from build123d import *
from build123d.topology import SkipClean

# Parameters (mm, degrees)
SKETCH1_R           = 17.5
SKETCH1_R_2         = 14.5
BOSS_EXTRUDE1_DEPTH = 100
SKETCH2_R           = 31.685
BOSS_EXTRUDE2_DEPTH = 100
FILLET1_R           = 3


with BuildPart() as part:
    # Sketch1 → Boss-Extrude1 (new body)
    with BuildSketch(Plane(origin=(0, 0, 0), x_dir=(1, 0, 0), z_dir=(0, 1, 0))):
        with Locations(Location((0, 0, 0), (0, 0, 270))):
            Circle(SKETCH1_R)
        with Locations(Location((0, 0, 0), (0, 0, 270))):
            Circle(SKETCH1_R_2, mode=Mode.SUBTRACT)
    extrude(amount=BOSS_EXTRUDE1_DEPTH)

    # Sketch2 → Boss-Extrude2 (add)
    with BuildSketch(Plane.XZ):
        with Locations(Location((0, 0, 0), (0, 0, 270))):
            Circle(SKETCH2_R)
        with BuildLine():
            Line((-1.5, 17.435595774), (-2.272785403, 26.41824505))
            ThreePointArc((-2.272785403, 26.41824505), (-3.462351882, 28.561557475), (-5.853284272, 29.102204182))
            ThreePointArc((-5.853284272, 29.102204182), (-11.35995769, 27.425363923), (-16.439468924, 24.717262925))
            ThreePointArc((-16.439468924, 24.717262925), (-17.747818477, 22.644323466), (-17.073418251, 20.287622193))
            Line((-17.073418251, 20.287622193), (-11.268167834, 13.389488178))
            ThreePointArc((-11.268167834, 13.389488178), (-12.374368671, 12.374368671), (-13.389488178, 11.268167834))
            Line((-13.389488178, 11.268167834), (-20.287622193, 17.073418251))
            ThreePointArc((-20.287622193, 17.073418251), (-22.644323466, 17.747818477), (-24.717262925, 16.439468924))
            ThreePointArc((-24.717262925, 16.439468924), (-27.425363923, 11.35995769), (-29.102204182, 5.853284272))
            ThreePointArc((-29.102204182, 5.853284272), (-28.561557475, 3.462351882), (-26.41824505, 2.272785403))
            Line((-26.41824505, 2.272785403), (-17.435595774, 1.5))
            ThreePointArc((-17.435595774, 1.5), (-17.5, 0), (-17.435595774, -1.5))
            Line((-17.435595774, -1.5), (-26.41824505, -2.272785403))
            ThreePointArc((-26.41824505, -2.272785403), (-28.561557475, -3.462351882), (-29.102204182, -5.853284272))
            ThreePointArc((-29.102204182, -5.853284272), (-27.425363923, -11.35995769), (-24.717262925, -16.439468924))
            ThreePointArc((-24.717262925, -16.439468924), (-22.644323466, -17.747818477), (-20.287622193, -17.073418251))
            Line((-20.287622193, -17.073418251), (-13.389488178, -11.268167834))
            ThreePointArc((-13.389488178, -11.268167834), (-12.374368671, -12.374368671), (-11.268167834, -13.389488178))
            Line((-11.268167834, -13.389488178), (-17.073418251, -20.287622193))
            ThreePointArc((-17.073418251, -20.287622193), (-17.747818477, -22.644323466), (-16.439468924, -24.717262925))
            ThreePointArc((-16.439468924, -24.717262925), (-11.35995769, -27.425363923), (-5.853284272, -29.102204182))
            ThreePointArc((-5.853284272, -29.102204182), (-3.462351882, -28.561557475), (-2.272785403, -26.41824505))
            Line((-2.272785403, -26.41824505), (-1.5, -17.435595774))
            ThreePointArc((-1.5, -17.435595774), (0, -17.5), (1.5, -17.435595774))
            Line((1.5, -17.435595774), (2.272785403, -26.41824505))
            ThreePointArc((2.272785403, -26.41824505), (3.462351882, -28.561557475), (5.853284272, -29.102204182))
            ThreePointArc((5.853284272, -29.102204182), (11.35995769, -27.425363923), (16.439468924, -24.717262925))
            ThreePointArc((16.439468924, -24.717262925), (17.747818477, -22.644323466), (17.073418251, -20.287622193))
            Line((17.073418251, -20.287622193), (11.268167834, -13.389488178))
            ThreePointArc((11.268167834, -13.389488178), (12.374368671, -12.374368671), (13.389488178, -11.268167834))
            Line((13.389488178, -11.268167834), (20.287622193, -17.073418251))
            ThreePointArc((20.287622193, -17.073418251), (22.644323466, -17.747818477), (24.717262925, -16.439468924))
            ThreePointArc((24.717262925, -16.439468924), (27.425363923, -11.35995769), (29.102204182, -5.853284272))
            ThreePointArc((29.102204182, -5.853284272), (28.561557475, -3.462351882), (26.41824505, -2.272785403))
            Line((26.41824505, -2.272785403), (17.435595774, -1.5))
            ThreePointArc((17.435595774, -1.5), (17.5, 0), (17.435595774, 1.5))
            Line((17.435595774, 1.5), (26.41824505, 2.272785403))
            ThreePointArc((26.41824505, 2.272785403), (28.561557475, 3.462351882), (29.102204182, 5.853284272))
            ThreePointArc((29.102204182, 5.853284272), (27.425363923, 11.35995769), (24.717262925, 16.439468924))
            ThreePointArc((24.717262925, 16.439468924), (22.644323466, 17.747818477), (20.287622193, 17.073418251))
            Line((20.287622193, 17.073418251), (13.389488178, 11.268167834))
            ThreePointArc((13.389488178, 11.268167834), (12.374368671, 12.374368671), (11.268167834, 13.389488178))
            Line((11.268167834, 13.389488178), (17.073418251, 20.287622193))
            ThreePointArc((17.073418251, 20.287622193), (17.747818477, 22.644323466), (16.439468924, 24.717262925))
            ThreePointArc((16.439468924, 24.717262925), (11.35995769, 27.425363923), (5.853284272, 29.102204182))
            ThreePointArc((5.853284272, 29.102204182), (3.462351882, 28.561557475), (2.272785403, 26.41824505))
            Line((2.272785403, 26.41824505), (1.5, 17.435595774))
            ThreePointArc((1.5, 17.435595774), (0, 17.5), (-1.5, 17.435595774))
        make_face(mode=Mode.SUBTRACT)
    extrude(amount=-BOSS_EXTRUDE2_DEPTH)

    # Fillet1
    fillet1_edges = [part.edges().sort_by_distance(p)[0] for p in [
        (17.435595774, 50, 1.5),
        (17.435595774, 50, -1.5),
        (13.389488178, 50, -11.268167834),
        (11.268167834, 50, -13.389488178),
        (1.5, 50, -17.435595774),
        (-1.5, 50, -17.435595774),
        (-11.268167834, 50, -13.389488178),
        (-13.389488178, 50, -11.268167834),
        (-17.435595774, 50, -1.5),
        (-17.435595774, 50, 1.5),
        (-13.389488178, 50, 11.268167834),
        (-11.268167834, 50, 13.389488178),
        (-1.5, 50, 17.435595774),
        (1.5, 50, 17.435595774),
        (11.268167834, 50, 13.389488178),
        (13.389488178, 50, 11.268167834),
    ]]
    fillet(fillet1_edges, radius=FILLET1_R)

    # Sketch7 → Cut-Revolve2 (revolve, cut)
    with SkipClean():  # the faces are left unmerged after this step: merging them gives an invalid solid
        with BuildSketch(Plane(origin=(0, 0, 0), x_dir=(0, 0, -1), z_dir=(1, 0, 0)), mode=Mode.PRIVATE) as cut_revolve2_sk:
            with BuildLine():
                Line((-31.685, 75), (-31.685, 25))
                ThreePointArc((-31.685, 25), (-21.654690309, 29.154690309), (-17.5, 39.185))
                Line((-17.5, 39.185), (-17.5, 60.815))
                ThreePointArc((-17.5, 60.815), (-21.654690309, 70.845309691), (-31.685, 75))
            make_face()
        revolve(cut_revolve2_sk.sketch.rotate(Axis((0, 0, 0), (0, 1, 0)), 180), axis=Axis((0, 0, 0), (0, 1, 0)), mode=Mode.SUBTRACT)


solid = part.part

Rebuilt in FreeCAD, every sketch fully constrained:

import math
import FreeCAD as App
import Part
import Sketcher
from FreeCAD import Vector
Q = App.Units.Quantity


def edges_at(feature, points):
    """Names of the edges that pass closest to the given points."""
    edges = feature.Shape.Edges
    near = lambda p: min(range(len(edges)), key=lambda i: edges[i].distToShape(Part.Vertex(*p))[0])
    return sorted({f"Edge{near(p) + 1}" for p in points})

doc = App.newDocument("Part")
params = doc.addObject("Spreadsheet::Sheet", "Params")
for row, (alias, value) in enumerate([
    ("sketch1_diameter", "35 mm"),
    ("sketch1_diameter2", "29 mm"),
    ("pad1_length", "100 mm"),
    ("sketch2_radius", "3 mm"),
    ("sketch2_radius2", "17.5 mm"),
    ("sketch2_diameter", "63.37 mm"),
    ("pad2_length", "100 mm"),
    ("fillet_radius", "3 mm"),
    ("sketch3_width", "50 mm"),
    ("groove_angle", "360 deg"),
], start=1):
    params.set(f"A{row}", alias)
    params.set(f"B{row}", "=" + value)
    params.setAlias(f"B{row}", alias)

body = doc.addObject("PartDesign::Body", "Body")

sketch1 = body.newObject("Sketcher::SketchObject", "Sketch")
sketch1.AttachmentSupport = (doc.getObject("XZ_Plane"), [""])
sketch1.MapMode = "FlatFace"
sketch1.addGeometry([
    Part.Circle(Vector(0, 0, 0), Vector(0, 0, 1), 17.5),
    Part.Circle(Vector(0, 0, 0), Vector(0, 0, 1), 14.5),
], False)
sketch1.addConstraint([
    Sketcher.Constraint("Coincident", 0, 3, -1, 1),
    Sketcher.Constraint("Coincident", 1, 3, -1, 1),
    Sketcher.Constraint("Diameter", 0, Q("35 mm")),
    Sketcher.Constraint("Diameter", 1, Q("29 mm")),
])
sketch1.setExpression("Constraints[2]", "Params.sketch1_diameter")
sketch1.setExpression("Constraints[3]", "Params.sketch1_diameter2")
pad1 = body.newObject("PartDesign::Pad", "Pad")
pad1.Profile = sketch1
pad1.setExpression("Length", "Params.pad1_length")
pad1.Reversed = True

sketch2 = body.newObject("Sketcher::SketchObject", "Sketch001")
sketch2.AttachmentSupport = (doc.getObject("XZ_Plane"), [""])
sketch2.MapMode = "FlatFace"
sketch2.addGeometry([
    Part.Circle(Vector(0, 0, 0), Vector(0, 0, 1), 31.685),
    Part.LineSegment(Vector(-2.272785, 26.418245, 0), Vector(-1.5, 17.435596, 0)),
    Part.ArcOfCircle(Part.Circle(Vector(0, 0, 0), Vector(0, 0, 1), 17.5), math.radians(85.0829), math.radians(94.9171)),
    Part.LineSegment(Vector(1.5, 17.435596, 0), Vector(2.272785, 26.418245, 0)),
    Part.ArcOfCircle(Part.Circle(Vector(5.261745, 26.161102, 0), Vector(0, 0, 1), 3), math.radians(78.627907), math.radians(175.0829)),
    Part.ArcOfCircle(Part.Circle(Vector(0, 0, 0), Vector(0, 0, 1), 29.685), math.radians(56.372093), math.radians(78.627907)),
    Part.ArcOfCircle(Part.Circle(Vector(14.778077, 22.219308, 0), Vector(0, 0, 1), 3), math.radians(-40.0829), math.radians(56.372093)),
    Part.LineSegment(Vector(17.073418, 20.287622, 0), Vector(11.268168, 13.389488, 0)),
    Part.ArcOfCircle(Part.Circle(Vector(0, 0, 0), Vector(0, 0, 1), 17.5), math.radians(40.0829), math.radians(49.9171)),
    Part.LineSegment(Vector(13.389488, 11.268168, 0), Vector(20.287622, 17.073418, 0)),
    Part.ArcOfCircle(Part.Circle(Vector(22.219308, 14.778077, 0), Vector(0, 0, 1), 3), math.radians(33.627907), math.radians(130.0829)),
    Part.ArcOfCircle(Part.Circle(Vector(0, 0, 0), Vector(0, 0, 1), 29.685), math.radians(11.372093), math.radians(33.627907)),
    Part.ArcOfCircle(Part.Circle(Vector(26.161102, 5.261745, 0), Vector(0, 0, 1), 3), math.radians(-85.0829), math.radians(11.372093)),
    Part.LineSegment(Vector(26.418245, 2.272785, 0), Vector(17.435596, 1.5, 0)),
    Part.ArcOfCircle(Part.Circle(Vector(0, 0, 0), Vector(0, 0, 1), 17.5), math.radians(-4.9171), math.radians(4.9171)),
    Part.LineSegment(Vector(17.435596, -1.5, 0), Vector(26.418245, -2.272785, 0)),
    Part.ArcOfCircle(Part.Circle(Vector(26.161102, -5.261745, 0), Vector(0, 0, 1), 3), math.radians(-11.372093), math.radians(85.0829)),
    Part.ArcOfCircle(Part.Circle(Vector(0, 0, 0), Vector(0, 0, 1), 29.685), math.radians(-33.627907), math.radians(-11.372093)),
    Part.ArcOfCircle(Part.Circle(Vector(22.219308, -14.778077, 0), Vector(0, 0, 1), 3), math.radians(-130.0829), math.radians(-33.627907)),
    Part.LineSegment(Vector(20.287622, -17.073418, 0), Vector(13.389488, -11.268168, 0)),
    Part.ArcOfCircle(Part.Circle(Vector(0, 0, 0), Vector(0, 0, 1), 17.5), math.radians(-49.9171), math.radians(-40.0829)),
    Part.LineSegment(Vector(11.268168, -13.389488, 0), Vector(17.073418, -20.287622, 0)),
    Part.ArcOfCircle(Part.Circle(Vector(14.778077, -22.219308, 0), Vector(0, 0, 1), 3), math.radians(-56.372093), math.radians(40.0829)),
    Part.ArcOfCircle(Part.Circle(Vector(0, 0, 0), Vector(0, 0, 1), 29.685), math.radians(-78.627907), math.radians(-56.372093)),
    Part.ArcOfCircle(Part.Circle(Vector(5.261745, -26.161102, 0), Vector(0, 0, 1), 3), math.radians(-175.0829), math.radians(-78.627907)),
    Part.LineSegment(Vector(2.272785, -26.418245, 0), Vector(1.5, -17.435596, 0)),
    Part.ArcOfCircle(Part.Circle(Vector(0, 0, 0), Vector(0, 0, 1), 17.5), math.radians(-94.9171), math.radians(-85.0829)),
    Part.LineSegment(Vector(-1.5, -17.435596, 0), Vector(-2.272785, -26.418245, 0)),
    Part.ArcOfCircle(Part.Circle(Vector(-5.261745, -26.161102, 0), Vector(0, 0, 1), 3), math.radians(-101.372093), math.radians(-4.9171)),
    Part.ArcOfCircle(Part.Circle(Vector(0, 0, 0), Vector(0, 0, 1), 29.685), math.radians(-123.627907), math.radians(-101.372093)),
    Part.ArcOfCircle(Part.Circle(Vector(-14.778077, -22.219308, 0), Vector(0, 0, 1), 3), math.radians(139.9171), math.radians(236.372093)),
    Part.LineSegment(Vector(-17.073418, -20.287622, 0), Vector(-11.268168, -13.389488, 0)),
    Part.ArcOfCircle(Part.Circle(Vector(0, 0, 0), Vector(0, 0, 1), 17.5), math.radians(-139.9171), math.radians(-130.0829)),
    Part.LineSegment(Vector(-13.389488, -11.268168, 0), Vector(-20.287622, -17.073418, 0)),
    Part.ArcOfCircle(Part.Circle(Vector(-22.219308, -14.778077, 0), Vector(0, 0, 1), 3), math.radians(-146.372093), math.radians(-49.9171)),
    Part.ArcOfCircle(Part.Circle(Vector(0, 0, 0), Vector(0, 0, 1), 29.685), math.radians(-168.627907), math.radians(-146.372093)),
    Part.ArcOfCircle(Part.Circle(Vector(-26.161102, -5.261745, 0), Vector(0, 0, 1), 3), math.radians(94.9171), math.radians(191.372093)),
    Part.LineSegment(Vector(-26.418245, -2.272785, 0), Vector(-17.435596, -1.5, 0)),
    Part.ArcOfCircle(Part.Circle(Vector(0, 0, 0), Vector(0, 0, 1), 17.5), math.radians(175.0829), math.radians(184.9171)),
    Part.LineSegment(Vector(-17.435596, 1.5, 0), Vector(-26.418245, 2.272785, 0)),
    Part.ArcOfCircle(Part.Circle(Vector(-26.161102, 5.261745, 0), Vector(0, 0, 1), 3), math.radians(168.627907), math.radians(265.0829)),
    Part.ArcOfCircle(Part.Circle(Vector(0, 0, 0), Vector(0, 0, 1), 29.685), math.radians(146.372093), math.radians(168.627907)),
    Part.ArcOfCircle(Part.Circle(Vector(-22.219308, 14.778077, 0), Vector(0, 0, 1), 3), math.radians(49.9171), math.radians(146.372093)),
    Part.LineSegment(Vector(-20.287622, 17.073418, 0), Vector(-13.389488, 11.268168, 0)),
    Part.ArcOfCircle(Part.Circle(Vector(0, 0, 0), Vector(0, 0, 1), 17.5), math.radians(130.0829), math.radians(139.9171)),
    Part.LineSegment(Vector(-11.268168, 13.389488, 0), Vector(-17.073418, 20.287622, 0)),
    Part.ArcOfCircle(Part.Circle(Vector(-14.778077, 22.219308, 0), Vector(0, 0, 1), 3), math.radians(123.627907), math.radians(220.0829)),
    Part.ArcOfCircle(Part.Circle(Vector(0, 0, 0), Vector(0, 0, 1), 29.685), math.radians(101.372093), math.radians(123.627907)),
    Part.ArcOfCircle(Part.Circle(Vector(-5.261745, 26.161102, 0), Vector(0, 0, 1), 3), math.radians(4.9171), math.radians(101.372093)),
], False)
sketch2.addConstraint([
    Sketcher.Constraint("Coincident", 1, 2, 2, 2),
    Sketcher.Constraint("Coincident", 2, 1, 3, 1),
    Sketcher.Constraint("Tangent", 3, 2, 4, 2),
    Sketcher.Constraint("Tangent", 4, 1, 5, 2),
    Sketcher.Constraint("Tangent", 5, 1, 6, 2),
    Sketcher.Constraint("Tangent", 6, 1, 7, 1),
    Sketcher.Constraint("Coincident", 7, 2, 8, 2),
    Sketcher.Constraint("Coincident", 8, 1, 9, 1),
    Sketcher.Constraint("Tangent", 9, 2, 10, 2),
    Sketcher.Constraint("Tangent", 10, 1, 11, 2),
    Sketcher.Constraint("Tangent", 11, 1, 12, 2),
    Sketcher.Constraint("Tangent", 12, 1, 13, 1),
    Sketcher.Constraint("Coincident", 13, 2, 14, 2),
    Sketcher.Constraint("Coincident", 14, 1, 15, 1),
    Sketcher.Constraint("Tangent", 15, 2, 16, 2),
    Sketcher.Constraint("Tangent", 16, 1, 17, 2),
    Sketcher.Constraint("Tangent", 17, 1, 18, 2),
    Sketcher.Constraint("Tangent", 18, 1, 19, 1),
    Sketcher.Constraint("Coincident", 19, 2, 20, 2),
    Sketcher.Constraint("Coincident", 20, 1, 21, 1),
    Sketcher.Constraint("Tangent", 21, 2, 22, 2),
    Sketcher.Constraint("Tangent", 22, 1, 23, 2),
    Sketcher.Constraint("Tangent", 23, 1, 24, 2),
    Sketcher.Constraint("Tangent", 24, 1, 25, 1),
    Sketcher.Constraint("Coincident", 25, 2, 26, 2),
    Sketcher.Constraint("Coincident", 26, 1, 27, 1),
    Sketcher.Constraint("Tangent", 27, 2, 28, 2),
    Sketcher.Constraint("Tangent", 28, 1, 29, 2),
    Sketcher.Constraint("Tangent", 29, 1, 30, 2),
    Sketcher.Constraint("Tangent", 30, 1, 31, 1),
    Sketcher.Constraint("Coincident", 31, 2, 32, 2),
    Sketcher.Constraint("Coincident", 32, 1, 33, 1),
    Sketcher.Constraint("Tangent", 33, 2, 34, 2),
    Sketcher.Constraint("Tangent", 34, 1, 35, 2),
    Sketcher.Constraint("Tangent", 35, 1, 36, 2),
    Sketcher.Constraint("Tangent", 36, 1, 37, 1),
    Sketcher.Constraint("Coincident", 37, 2, 38, 2),
    Sketcher.Constraint("Coincident", 38, 1, 39, 1),
    Sketcher.Constraint("Tangent", 39, 2, 40, 2),
    Sketcher.Constraint("Tangent", 40, 1, 41, 2),
    Sketcher.Constraint("Tangent", 41, 1, 42, 2),
    Sketcher.Constraint("Tangent", 42, 1, 43, 1),
    Sketcher.Constraint("Coincident", 43, 2, 44, 2),
    Sketcher.Constraint("Coincident", 44, 1, 45, 1),
    Sketcher.Constraint("Tangent", 45, 2, 46, 2),
    Sketcher.Constraint("Tangent", 46, 1, 47, 2),
    Sketcher.Constraint("Tangent", 47, 1, 48, 2),
    Sketcher.Constraint("Tangent", 48, 1, 1, 1),
    Sketcher.Constraint("Coincident", 0, 3, -1, 1),
    Sketcher.Constraint("Coincident", 2, 3, -1, 1),
    Sketcher.Constraint("Coincident", 5, 3, -1, 1),
    Sketcher.Constraint("Coincident", 8, 3, -1, 1),
    Sketcher.Constraint("Coincident", 11, 3, -1, 1),
    Sketcher.Constraint("Coincident", 14, 3, -1, 1),
    Sketcher.Constraint("Coincident", 17, 3, -1, 1),
    Sketcher.Constraint("Coincident", 20, 3, -1, 1),
    Sketcher.Constraint("Coincident", 23, 3, -1, 1),
    Sketcher.Constraint("Coincident", 26, 3, -1, 1),
    Sketcher.Constraint("Coincident", 29, 3, -1, 1),
    Sketcher.Constraint("Coincident", 32, 3, -1, 1),
    Sketcher.Constraint("Coincident", 35, 3, -1, 1),
    Sketcher.Constraint("Coincident", 38, 3, -1, 1),
    Sketcher.Constraint("Coincident", 41, 3, -1, 1),
    Sketcher.Constraint("Coincident", 44, 3, -1, 1),
    Sketcher.Constraint("Coincident", 47, 3, -1, 1),
    Sketcher.Constraint("Equal", 4, 6),
    Sketcher.Constraint("Equal", 2, 8),
    Sketcher.Constraint("Equal", 6, 10),
    Sketcher.Constraint("Equal", 5, 11),
    Sketcher.Constraint("Equal", 10, 12),
    Sketcher.Constraint("Equal", 8, 14),
    Sketcher.Constraint("Equal", 12, 16),
    Sketcher.Constraint("Equal", 11, 17),
    Sketcher.Constraint("Equal", 16, 18),
    Sketcher.Constraint("Equal", 14, 20),
    Sketcher.Constraint("Equal", 18, 22),
    Sketcher.Constraint("Equal", 17, 23),
    Sketcher.Constraint("Equal", 22, 24),
    Sketcher.Constraint("Equal", 20, 26),
    Sketcher.Constraint("Equal", 24, 28),
    Sketcher.Constraint("Equal", 23, 29),
    Sketcher.Constraint("Equal", 28, 30),
    Sketcher.Constraint("Equal", 26, 32),
    Sketcher.Constraint("Equal", 30, 34),
    Sketcher.Constraint("Equal", 29, 35),
    Sketcher.Constraint("Equal", 34, 36),
    Sketcher.Constraint("Equal", 32, 38),
    Sketcher.Constraint("Equal", 36, 40),
    Sketcher.Constraint("Equal", 35, 41),
    Sketcher.Constraint("Equal", 40, 42),
    Sketcher.Constraint("Equal", 38, 44),
    Sketcher.Constraint("Equal", 42, 46),
    Sketcher.Constraint("Equal", 41, 47),
    Sketcher.Constraint("Equal", 46, 48),
    Sketcher.Constraint("Symmetric", 3, 2, 27, 2, -1, 1),
    Sketcher.Constraint("Symmetric", 6, 1, 30, 1, -1, 1),
    Sketcher.Constraint("Symmetric", 9, 2, 33, 2, -1, 1),
    Sketcher.Constraint("Symmetric", 12, 1, 36, 1, -1, 1),
    Sketcher.Constraint("Symmetric", 15, 2, 39, 2, -1, 1),
    Sketcher.Constraint("Symmetric", 18, 1, 42, 1, -1, 1),
    Sketcher.Constraint("Symmetric", 21, 2, 45, 2, -1, 1),
    Sketcher.Constraint("Symmetric", 24, 1, 48, 1, -1, 1),
    Sketcher.Constraint("Symmetric", 24, 1, 27, 2, -2),
    Sketcher.Constraint("Symmetric", 21, 2, 30, 1, -2),
    Sketcher.Constraint("Symmetric", 18, 1, 33, 2, -2),
    Sketcher.Constraint("Symmetric", 15, 2, 36, 1, -2),
    Sketcher.Constraint("Perpendicular", 1, 13),
    Sketcher.Constraint("Perpendicular", 7, 19),
    Sketcher.Constraint("Equal", 3, 7),
    Sketcher.Constraint("Equal", 7, 9),
    Sketcher.Constraint("Equal", 9, 13),
    Sketcher.Constraint("Radius", 4, Q("3 mm")),
    Sketcher.Constraint("Radius", 2, Q("17.5 mm")),
    Sketcher.Constraint("Diameter", 0, Q("63.37 mm")),
    Sketcher.Constraint("Radius", 5, Q("29.685 mm")),
    Sketcher.Constraint("DistanceX", 1, 2, -1, 1, Q("1.5 mm")),
    Sketcher.Constraint("Distance", 1, Q("9.01583 mm")),
    Sketcher.Constraint("DistanceY", -1, 1, 6, 3, Q("22.219308 mm")),
])
sketch2.setExpression("Constraints[111]", "Params.sketch2_radius")
sketch2.setExpression("Constraints[112]", "Params.sketch2_radius2")
sketch2.setExpression("Constraints[113]", "Params.sketch2_diameter")
pad2 = body.newObject("PartDesign::Pad", "Pad001")
pad2.Profile = sketch2
pad2.setExpression("Length", "Params.pad2_length")
pad2.Reversed = True
doc.recompute()

fillet = body.newObject("PartDesign::Fillet", "Fillet")
fillet.Base = (pad2, edges_at(pad2, [
    (17.436, 50, 1.5),
    (17.436, 50, -1.5),
    (13.389, 50, -11.268),
    (11.268, 50, -13.389),
    (1.5, 50, -17.436),
    (-1.5, 50, -17.436),
    (-11.268, 50, -13.389),
    (-13.389, 50, -11.268),
    (-17.436, 50, -1.5),
    (-17.436, 50, 1.5),
    (-13.389, 50, 11.268),
    (-11.268, 50, 13.389),
    (-1.5, 50, 17.436),
    (1.5, 50, 17.436),
    (11.268, 50, 13.389),
    (13.389, 50, 11.268),
]))
fillet.setExpression("Radius", "Params.fillet_radius")

sketch3 = body.newObject("Sketcher::SketchObject", "Sketch002")
sketch3.AttachmentSupport = (doc.getObject("YZ_Plane"), [""])
sketch3.MapMode = "FlatFace"
sketch3.addGeometry([
    Part.LineSegment(Vector(75, 31.685, 0), Vector(25, 31.685, 0)),
    Part.ArcOfCircle(Part.Circle(Vector(39.185, 31.685, 0), Vector(0, 0, 1), 14.185), math.radians(180), math.radians(270)),
    Part.LineSegment(Vector(39.185, 17.5, 0), Vector(60.815, 17.5, 0)),
    Part.ArcOfCircle(Part.Circle(Vector(60.815, 31.685, 0), Vector(0, 0, 1), 14.185), math.radians(-90), math.radians(0)),
], False)
sketch3.addConstraint([
    Sketcher.Constraint("Coincident", 0, 2, 1, 1),
    Sketcher.Constraint("Tangent", 1, 2, 2, 1),
    Sketcher.Constraint("Tangent", 2, 2, 3, 1),
    Sketcher.Constraint("Coincident", 3, 2, 0, 1),
    Sketcher.Constraint("Horizontal", 0),
    Sketcher.Constraint("Horizontal", 2),
    Sketcher.Constraint("Equal", 1, 3),
    Sketcher.Constraint("Horizontal", 3, 3, 0, 2),
    Sketcher.Constraint("DistanceX", 0, 2, 0, 1, Q("50 mm")),
    Sketcher.Constraint("DistanceX", -1, 1, 0, 2, Q("25 mm")),
    Sketcher.Constraint("Radius", 1, Q("14.185 mm")),
    Sketcher.Constraint("DistanceY", -1, 1, 1, 2, Q("17.5 mm")),
])
sketch3.setExpression("Constraints[8]", "Params.sketch3_width")
groove = body.newObject("PartDesign::Groove", "Groove")
groove.Profile = sketch3
groove.ReferenceAxis = (sketch3, ["H_Axis"])
groove.setExpression("Angle", "Params.groove_angle")

doc.recompute()
